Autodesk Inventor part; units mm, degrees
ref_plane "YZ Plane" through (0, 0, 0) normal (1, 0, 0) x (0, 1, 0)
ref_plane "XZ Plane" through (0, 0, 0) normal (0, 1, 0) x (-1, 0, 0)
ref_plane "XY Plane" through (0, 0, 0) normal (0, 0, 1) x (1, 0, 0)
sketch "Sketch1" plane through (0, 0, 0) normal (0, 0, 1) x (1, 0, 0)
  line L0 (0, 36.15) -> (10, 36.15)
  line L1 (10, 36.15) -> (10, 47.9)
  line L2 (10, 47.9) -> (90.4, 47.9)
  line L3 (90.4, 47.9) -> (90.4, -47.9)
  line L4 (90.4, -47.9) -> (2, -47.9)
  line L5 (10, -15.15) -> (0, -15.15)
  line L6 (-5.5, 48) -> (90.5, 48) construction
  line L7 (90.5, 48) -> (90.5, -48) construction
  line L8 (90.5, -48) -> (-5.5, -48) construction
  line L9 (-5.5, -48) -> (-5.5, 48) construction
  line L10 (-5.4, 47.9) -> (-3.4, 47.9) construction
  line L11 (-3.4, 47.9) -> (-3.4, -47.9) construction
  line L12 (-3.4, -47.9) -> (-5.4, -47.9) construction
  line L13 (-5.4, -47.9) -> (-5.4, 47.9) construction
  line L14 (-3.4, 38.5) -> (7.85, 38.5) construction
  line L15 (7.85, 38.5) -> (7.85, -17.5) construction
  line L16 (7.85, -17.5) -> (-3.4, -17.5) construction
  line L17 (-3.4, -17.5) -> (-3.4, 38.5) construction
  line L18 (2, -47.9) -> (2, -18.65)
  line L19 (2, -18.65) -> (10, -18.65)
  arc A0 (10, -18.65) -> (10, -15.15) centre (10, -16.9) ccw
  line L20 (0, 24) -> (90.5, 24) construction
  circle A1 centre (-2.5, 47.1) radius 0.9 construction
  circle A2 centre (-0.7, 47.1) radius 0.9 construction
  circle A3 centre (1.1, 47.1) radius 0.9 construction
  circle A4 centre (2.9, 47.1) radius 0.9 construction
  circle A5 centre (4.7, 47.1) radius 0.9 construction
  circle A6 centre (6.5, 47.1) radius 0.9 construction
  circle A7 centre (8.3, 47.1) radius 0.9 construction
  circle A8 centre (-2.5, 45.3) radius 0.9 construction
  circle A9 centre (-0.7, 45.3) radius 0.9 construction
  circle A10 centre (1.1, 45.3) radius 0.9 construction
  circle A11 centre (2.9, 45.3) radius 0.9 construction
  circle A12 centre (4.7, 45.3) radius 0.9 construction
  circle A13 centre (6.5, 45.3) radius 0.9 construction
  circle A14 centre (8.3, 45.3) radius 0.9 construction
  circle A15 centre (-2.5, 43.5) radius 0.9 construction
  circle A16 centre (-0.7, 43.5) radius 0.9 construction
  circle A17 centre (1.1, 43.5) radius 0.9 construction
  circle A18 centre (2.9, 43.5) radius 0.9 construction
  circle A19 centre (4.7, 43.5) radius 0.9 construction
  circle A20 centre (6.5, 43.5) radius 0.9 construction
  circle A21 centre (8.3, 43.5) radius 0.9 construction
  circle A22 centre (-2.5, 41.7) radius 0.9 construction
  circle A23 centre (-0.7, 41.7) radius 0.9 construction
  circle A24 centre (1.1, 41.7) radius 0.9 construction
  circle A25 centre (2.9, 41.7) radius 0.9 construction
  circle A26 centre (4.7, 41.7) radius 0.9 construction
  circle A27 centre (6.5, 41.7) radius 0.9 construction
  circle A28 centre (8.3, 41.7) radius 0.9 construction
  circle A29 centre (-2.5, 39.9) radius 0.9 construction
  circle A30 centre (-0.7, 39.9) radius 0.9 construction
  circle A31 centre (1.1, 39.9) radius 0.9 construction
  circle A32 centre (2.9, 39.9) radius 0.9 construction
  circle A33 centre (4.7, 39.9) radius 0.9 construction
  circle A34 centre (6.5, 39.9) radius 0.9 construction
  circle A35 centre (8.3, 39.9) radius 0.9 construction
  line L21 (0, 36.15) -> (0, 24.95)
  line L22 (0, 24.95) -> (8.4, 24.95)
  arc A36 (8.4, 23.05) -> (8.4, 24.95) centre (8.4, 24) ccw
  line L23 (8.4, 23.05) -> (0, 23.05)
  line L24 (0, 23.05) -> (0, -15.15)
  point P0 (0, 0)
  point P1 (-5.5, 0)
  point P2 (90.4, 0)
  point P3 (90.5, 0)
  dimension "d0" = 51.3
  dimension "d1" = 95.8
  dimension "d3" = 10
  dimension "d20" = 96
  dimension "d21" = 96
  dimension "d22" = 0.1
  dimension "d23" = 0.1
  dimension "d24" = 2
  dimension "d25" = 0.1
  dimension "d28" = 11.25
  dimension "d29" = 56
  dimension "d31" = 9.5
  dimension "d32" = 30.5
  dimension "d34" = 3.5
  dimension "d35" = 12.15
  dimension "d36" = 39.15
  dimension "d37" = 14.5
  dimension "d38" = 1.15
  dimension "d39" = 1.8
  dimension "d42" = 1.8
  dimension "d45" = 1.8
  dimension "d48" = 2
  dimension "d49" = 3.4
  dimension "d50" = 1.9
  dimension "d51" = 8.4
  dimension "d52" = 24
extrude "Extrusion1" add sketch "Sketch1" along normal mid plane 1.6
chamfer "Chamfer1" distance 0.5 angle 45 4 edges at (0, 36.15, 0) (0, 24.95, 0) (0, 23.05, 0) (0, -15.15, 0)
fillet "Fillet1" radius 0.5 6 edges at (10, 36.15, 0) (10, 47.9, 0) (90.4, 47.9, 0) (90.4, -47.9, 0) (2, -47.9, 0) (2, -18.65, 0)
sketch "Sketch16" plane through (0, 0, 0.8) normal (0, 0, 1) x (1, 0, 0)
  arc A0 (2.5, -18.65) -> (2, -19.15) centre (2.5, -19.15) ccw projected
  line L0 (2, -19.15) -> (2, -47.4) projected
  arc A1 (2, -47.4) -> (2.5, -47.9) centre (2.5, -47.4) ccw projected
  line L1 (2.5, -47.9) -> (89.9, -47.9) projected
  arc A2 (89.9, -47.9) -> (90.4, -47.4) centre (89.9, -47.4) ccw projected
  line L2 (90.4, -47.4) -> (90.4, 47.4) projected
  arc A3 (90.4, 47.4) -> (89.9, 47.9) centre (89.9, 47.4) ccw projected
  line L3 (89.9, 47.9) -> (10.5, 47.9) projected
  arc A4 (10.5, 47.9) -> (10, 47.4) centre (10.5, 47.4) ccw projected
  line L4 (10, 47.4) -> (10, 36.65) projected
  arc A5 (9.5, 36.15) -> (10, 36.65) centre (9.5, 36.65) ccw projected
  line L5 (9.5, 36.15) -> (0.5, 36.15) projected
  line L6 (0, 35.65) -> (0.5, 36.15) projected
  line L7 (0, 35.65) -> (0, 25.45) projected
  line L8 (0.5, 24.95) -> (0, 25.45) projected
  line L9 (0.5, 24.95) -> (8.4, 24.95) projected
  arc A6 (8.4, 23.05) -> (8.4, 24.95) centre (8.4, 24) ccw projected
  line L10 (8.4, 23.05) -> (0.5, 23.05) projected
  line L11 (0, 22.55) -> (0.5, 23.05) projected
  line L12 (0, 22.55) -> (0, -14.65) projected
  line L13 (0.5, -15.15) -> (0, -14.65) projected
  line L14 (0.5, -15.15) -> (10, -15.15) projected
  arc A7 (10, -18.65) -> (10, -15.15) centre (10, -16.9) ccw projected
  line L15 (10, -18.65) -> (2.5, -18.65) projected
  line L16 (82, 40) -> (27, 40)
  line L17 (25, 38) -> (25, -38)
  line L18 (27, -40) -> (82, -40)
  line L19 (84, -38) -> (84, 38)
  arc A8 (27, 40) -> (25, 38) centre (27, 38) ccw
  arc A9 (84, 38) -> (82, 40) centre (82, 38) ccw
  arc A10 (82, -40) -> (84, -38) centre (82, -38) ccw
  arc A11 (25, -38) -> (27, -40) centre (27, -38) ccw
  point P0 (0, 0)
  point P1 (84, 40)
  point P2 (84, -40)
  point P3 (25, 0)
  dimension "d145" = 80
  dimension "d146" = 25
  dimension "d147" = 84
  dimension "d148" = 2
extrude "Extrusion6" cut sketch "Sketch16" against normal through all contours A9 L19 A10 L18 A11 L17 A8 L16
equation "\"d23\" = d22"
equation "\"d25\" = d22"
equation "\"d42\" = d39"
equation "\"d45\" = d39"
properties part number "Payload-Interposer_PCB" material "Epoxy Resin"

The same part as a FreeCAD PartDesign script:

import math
import FreeCAD as App
import Part
import Sketcher
from FreeCAD import Vector
Q = App.Units.Quantity


def edges_at(feature, points):
    """Names of the edges that pass closest to the given points."""
    edges = feature.Shape.Edges
    near = lambda p: min(range(len(edges)), key=lambda i: edges[i].distToShape(Part.Vertex(*p))[0])
    return sorted({f"Edge{near(p) + 1}" for p in points})

doc = App.newDocument("Part")
body = doc.addObject("PartDesign::Body", "Body")

# Sketch on XY plane
sketch1 = body.newObject("Sketcher::SketchObject", "Sketch")
sketch1.AttachmentSupport = (doc.getObject("XY_Plane"), [""])
sketch1.MapMode = "FlatFace"
sketch1.addGeometry(Part.LineSegment(Vector(10, 36.1, 0), Vector(0, 36.1, 0)), False)
sketch1.addGeometry(Part.LineSegment(Vector(0, 36.1, 0), Vector(0, 24.9, 0)), False)
sketch1.addGeometry(Part.LineSegment(Vector(0, 24.9, 0), Vector(8.4, 24.9, 0)), False)
sketch1.addGeometry(Part.ArcOfCircle(Part.Circle(Vector(8.4, 24, 0), Vector(0, 0, 1), 0.9), math.radians(-90), math.radians(90)), False)
sketch1.addGeometry(Part.LineSegment(Vector(8.4, 23.1, 0), Vector(0, 23.1, 0)), False)
sketch1.addGeometry(Part.LineSegment(Vector(0, 23.1, 0), Vector(0, -15.2, 0)), False)
sketch1.addGeometry(Part.LineSegment(Vector(0, -15.2, 0), Vector(10, -15.2, 0)), False)
sketch1.addGeometry(Part.ArcOfCircle(Part.Circle(Vector(10, -16.9, 0), Vector(0, 0, 1), 1.8), math.radians(-90), math.radians(90)), False)
sketch1.addGeometry(Part.LineSegment(Vector(10, -18.6, 0), Vector(2, -18.6, 0)), False)
sketch1.addGeometry(Part.LineSegment(Vector(2, -18.6, 0), Vector(2, -47.9, 0)), False)
sketch1.addGeometry(Part.LineSegment(Vector(2, -47.9, 0), Vector(90.4, -47.9, 0)), False)
sketch1.addGeometry(Part.LineSegment(Vector(90.4, -47.9, 0), Vector(90.4, 47.9, 0)), False)
sketch1.addGeometry(Part.LineSegment(Vector(90.4, 47.9, 0), Vector(10, 47.9, 0)), False)
sketch1.addGeometry(Part.LineSegment(Vector(10, 47.9, 0), Vector(10, 36.1, 0)), False)
sketch1.addConstraint(Sketcher.Constraint("Coincident", 0, 2, 1, 1))
sketch1.addConstraint(Sketcher.Constraint("Coincident", 1, 2, 2, 1))
sketch1.addConstraint(Sketcher.Constraint("Tangent", 2, 2, 3, 2))
sketch1.addConstraint(Sketcher.Constraint("Tangent", 3, 1, 4, 1))
sketch1.addConstraint(Sketcher.Constraint("Coincident", 4, 2, 5, 1))
sketch1.addConstraint(Sketcher.Constraint("Coincident", 5, 2, 6, 1))
sketch1.addConstraint(Sketcher.Constraint("Tangent", 6, 2, 7, 2))
sketch1.addConstraint(Sketcher.Constraint("Tangent", 7, 1, 8, 1))
sketch1.addConstraint(Sketcher.Constraint("Coincident", 8, 2, 9, 1))
sketch1.addConstraint(Sketcher.Constraint("Coincident", 9, 2, 10, 1))
sketch1.addConstraint(Sketcher.Constraint("Coincident", 10, 2, 11, 1))
sketch1.addConstraint(Sketcher.Constraint("Coincident", 11, 2, 12, 1))
sketch1.addConstraint(Sketcher.Constraint("Coincident", 12, 2, 13, 1))
sketch1.addConstraint(Sketcher.Constraint("Coincident", 13, 2, 0, 1))
sketch1.addConstraint(Sketcher.Constraint("Horizontal", 0))
sketch1.addConstraint(Sketcher.Constraint("Vertical", 1))
sketch1.addConstraint(Sketcher.Constraint("Horizontal", 2))
sketch1.addConstraint(Sketcher.Constraint("Horizontal", 4))
sketch1.addConstraint(Sketcher.Constraint("Vertical", 5))
sketch1.addConstraint(Sketcher.Constraint("Horizontal", 6))
sketch1.addConstraint(Sketcher.Constraint("Horizontal", 8))
sketch1.addConstraint(Sketcher.Constraint("Vertical", 9))
sketch1.addConstraint(Sketcher.Constraint("Horizontal", 10))
sketch1.addConstraint(Sketcher.Constraint("Vertical", 11))
sketch1.addConstraint(Sketcher.Constraint("Horizontal", 12))
sketch1.addConstraint(Sketcher.Constraint("Vertical", 13))
sketch1.addConstraint(Sketcher.Constraint("PointOnObject", 0, 2, -2))
sketch1.addConstraint(Sketcher.Constraint("PointOnObject", 4, 2, -2))
sketch1.addConstraint(Sketcher.Constraint("Vertical", 7, 1, 12, 2))
sketch1.addConstraint(Sketcher.Constraint("DistanceX", 0, 2, 0, 1, Q("10 mm")))
sketch1.addConstraint(Sketcher.Constraint("Radius", 3, Q("0.95 mm")))
sketch1.addConstraint(Sketcher.Constraint("Radius", 7, Q("1.75 mm")))
sketch1.addConstraint(Sketcher.Constraint("DistanceX", 2, 1, 2, 2, Q("8.4 mm")))
sketch1.addConstraint(Sketcher.Constraint("DistanceY", 11, 1, 11, 2, Q("95.8 mm")))
sketch1.addConstraint(Sketcher.Constraint("DistanceY", -1, 1, 3, 3, Q("24 mm")))
sketch1.addConstraint(Sketcher.Constraint("DistanceX", -1, 1, 8, 2, Q("2 mm")))
sketch1.addConstraint(Sketcher.Constraint("DistanceY", 3, 3, 0, 2, Q("12.15 mm")))
sketch1.addConstraint(Sketcher.Constraint("DistanceY", 5, 2, 3, 3, Q("39.15 mm")))
sketch1.addConstraint(Sketcher.Constraint("DistanceX", 10, 1, 10, 2, Q("88.4 mm")))
sketch1.addConstraint(Sketcher.Constraint("DistanceY", 9, 2, 7, 3, Q("31 mm")))
pad1 = body.newObject("PartDesign::Pad", "Pad")
pad1.Profile = sketch1
pad1.Length = 1.6
pad1.Midplane = True
doc.recompute()

chamfer = body.newObject("PartDesign::Chamfer", "Chamfer")
chamfer.Base = (pad1, edges_at(pad1, [
    (0, 36.15, 0),
    (0, 24.95, 0),
    (0, 23.05, 0),
    (0, -15.15, 0),
]))
chamfer.Size = 0.5
doc.recompute()

fillet = body.newObject("PartDesign::Fillet", "Fillet")
fillet.Base = (chamfer, edges_at(chamfer, [
    (10, 36.15, 0),
    (10, 47.9, 0),
    (90.4, 47.9, 0),
    (90.4, -47.9, 0),
    (2, -47.9, 0),
    (2, -18.65, 0),
]))
fillet.Radius = 0.5

# Sketch on XY plane
sketch2 = body.newObject("Sketcher::SketchObject", "Sketch001")
sketch2.AttachmentSupport = (doc.getObject("XY_Plane"), [""])
sketch2.MapMode = "FlatFace"
sketch2.AttachmentOffset = App.Placement(Vector(0, 0, 0.8), App.Rotation())
sketch2.addGeometry(Part.ArcOfCircle(Part.Circle(Vector(82, 38, 0), Vector(0, 0, 1), 2), math.radians(0), math.radians(90)), False)
sketch2.addGeometry(Part.LineSegment(Vector(82, 40, 0), Vector(27, 40, 0)), False)
sketch2.addGeometry(Part.ArcOfCircle(Part.Circle(Vector(27, 38, 0), Vector(0, 0, 1), 2), math.radians(90), math.radians(180)), False)
sketch2.addGeometry(Part.LineSegment(Vector(25, 38, 0), Vector(25, -38, 0)), False)
sketch2.addGeometry(Part.ArcOfCircle(Part.Circle(Vector(27, -38, 0), Vector(0, 0, 1), 2), math.radians(180), math.radians(270)), False)
sketch2.addGeometry(Part.LineSegment(Vector(27, -40, 0), Vector(82, -40, 0)), False)
sketch2.addGeometry(Part.ArcOfCircle(Part.Circle(Vector(82, -38, 0), Vector(0, 0, 1), 2), math.radians(-90), math.radians(0)), False)
sketch2.addGeometry(Part.LineSegment(Vector(84, -38, 0), Vector(84, 38, 0)), False)
sketch2.addConstraint(Sketcher.Constraint("Tangent", 0, 2, 1, 1))
sketch2.addConstraint(Sketcher.Constraint("Tangent", 1, 2, 2, 1))
sketch2.addConstraint(Sketcher.Constraint("Tangent", 2, 2, 3, 1))
sketch2.addConstraint(Sketcher.Constraint("Tangent", 3, 2, 4, 1))
sketch2.addConstraint(Sketcher.Constraint("Tangent", 4, 2, 5, 1))
sketch2.addConstraint(Sketcher.Constraint("Tangent", 5, 2, 6, 1))
sketch2.addConstraint(Sketcher.Constraint("Tangent", 6, 2, 7, 1))
sketch2.addConstraint(Sketcher.Constraint("Tangent", 7, 2, 0, 1))
sketch2.addConstraint(Sketcher.Constraint("Horizontal", 1))
sketch2.addConstraint(Sketcher.Constraint("Vertical", 3))
sketch2.addConstraint(Sketcher.Constraint("Horizontal", 5))
sketch2.addConstraint(Sketcher.Constraint("Vertical", 7))
sketch2.addConstraint(Sketcher.Constraint("Equal", 0, 2))
sketch2.addConstraint(Sketcher.Constraint("Equal", 2, 4))
sketch2.addConstraint(Sketcher.Constraint("Equal", 4, 6))
sketch2.addConstraint(Sketcher.Constraint("Radius", 0, Q("2 mm")))
sketch2.addConstraint(Sketcher.Constraint("DistanceX", -1, 1, 2, 2, Q("25 mm")))
sketch2.addConstraint(Sketcher.Constraint("DistanceX", -1, 1, 6, 2, Q("84 mm")))
sketch2.addConstraint(Sketcher.Constraint("DistanceY", 3, 2, 3, 1, Q("76 mm")))
sketch2.addConstraint(Sketcher.Constraint("DistanceY", -1, 1, 0, 3, Q("38 mm")))
pocket1 = body.newObject("PartDesign::Pocket", "Pocket")
pocket1.Profile = sketch2
pocket1.Type = "ThroughAll"

doc.recompute()
